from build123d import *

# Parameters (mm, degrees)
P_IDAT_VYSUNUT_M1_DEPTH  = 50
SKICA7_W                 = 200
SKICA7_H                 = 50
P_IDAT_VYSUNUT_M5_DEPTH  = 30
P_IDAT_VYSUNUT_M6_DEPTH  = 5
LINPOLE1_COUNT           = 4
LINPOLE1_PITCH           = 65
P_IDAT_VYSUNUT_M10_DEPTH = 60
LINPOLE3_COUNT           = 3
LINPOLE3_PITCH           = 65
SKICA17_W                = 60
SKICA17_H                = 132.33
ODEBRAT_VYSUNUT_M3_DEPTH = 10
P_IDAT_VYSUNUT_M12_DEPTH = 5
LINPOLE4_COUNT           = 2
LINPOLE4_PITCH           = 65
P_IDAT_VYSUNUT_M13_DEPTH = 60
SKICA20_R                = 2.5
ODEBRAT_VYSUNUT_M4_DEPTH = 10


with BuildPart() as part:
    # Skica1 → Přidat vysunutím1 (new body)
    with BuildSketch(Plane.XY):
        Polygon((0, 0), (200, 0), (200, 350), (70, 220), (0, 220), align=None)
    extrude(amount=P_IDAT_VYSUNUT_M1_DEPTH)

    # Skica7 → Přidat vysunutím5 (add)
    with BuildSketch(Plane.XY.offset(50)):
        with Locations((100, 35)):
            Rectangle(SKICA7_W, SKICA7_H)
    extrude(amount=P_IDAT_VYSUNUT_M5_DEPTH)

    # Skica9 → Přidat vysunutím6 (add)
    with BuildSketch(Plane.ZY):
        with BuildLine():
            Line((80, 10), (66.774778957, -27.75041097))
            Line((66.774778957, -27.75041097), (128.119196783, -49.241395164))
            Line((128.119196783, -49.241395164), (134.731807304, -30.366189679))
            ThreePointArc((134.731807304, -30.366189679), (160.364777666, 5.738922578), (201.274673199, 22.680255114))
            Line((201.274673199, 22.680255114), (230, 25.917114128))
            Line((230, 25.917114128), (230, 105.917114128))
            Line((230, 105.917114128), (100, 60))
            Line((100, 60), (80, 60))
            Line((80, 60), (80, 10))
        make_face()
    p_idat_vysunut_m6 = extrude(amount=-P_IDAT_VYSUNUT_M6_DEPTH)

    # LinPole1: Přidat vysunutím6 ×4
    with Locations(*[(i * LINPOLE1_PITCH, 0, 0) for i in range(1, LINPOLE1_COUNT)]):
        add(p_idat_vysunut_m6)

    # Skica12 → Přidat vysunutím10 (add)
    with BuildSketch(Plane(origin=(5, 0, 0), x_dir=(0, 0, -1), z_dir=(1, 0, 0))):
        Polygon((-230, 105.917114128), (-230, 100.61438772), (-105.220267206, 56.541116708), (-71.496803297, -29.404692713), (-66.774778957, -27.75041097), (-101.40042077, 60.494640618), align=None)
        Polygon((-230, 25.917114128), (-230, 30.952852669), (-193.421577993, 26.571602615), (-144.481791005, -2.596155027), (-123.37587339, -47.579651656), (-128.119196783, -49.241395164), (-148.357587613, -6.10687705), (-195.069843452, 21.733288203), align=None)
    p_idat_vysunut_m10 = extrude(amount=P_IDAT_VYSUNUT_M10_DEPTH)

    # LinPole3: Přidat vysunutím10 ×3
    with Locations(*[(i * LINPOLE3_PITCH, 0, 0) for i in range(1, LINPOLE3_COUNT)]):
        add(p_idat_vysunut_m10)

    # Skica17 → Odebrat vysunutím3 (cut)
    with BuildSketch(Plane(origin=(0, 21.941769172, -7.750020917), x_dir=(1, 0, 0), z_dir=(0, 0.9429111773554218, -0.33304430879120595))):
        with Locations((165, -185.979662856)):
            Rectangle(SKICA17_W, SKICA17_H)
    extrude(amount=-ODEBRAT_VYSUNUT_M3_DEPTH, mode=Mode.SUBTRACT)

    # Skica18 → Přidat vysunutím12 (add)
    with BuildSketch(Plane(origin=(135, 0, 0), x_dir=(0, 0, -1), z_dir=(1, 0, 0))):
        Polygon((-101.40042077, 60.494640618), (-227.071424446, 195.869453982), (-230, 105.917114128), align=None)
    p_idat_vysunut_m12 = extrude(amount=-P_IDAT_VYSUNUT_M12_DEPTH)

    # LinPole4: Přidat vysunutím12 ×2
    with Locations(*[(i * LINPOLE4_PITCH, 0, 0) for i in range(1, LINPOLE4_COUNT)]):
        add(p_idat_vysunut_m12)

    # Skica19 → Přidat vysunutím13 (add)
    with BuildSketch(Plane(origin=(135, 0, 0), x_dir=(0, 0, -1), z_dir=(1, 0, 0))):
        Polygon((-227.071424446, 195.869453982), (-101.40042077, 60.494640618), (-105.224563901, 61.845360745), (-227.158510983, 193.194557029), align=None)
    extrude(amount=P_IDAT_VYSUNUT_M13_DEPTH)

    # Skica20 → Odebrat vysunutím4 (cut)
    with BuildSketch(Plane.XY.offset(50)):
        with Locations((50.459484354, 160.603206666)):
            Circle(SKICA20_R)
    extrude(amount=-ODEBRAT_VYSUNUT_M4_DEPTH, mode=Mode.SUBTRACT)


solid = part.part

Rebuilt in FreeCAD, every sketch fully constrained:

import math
import FreeCAD as App
import Part
import Sketcher

V = App.Vector
Q = App.Units.Quantity


def add_polygon(sketch, points):
    """Adds a closed chain of lines whose ends are joined by coincident constraints."""
    first, n = sketch.GeometryCount, len(points)
    for a, b in zip(points, points[1:] + points[:1]):
        sketch.addGeometry(Part.LineSegment(App.Vector(*a, 0), App.Vector(*b, 0)), False)
    for i in range(n):
        sketch.addConstraint(Sketcher.Constraint("Coincident", first + i, 2, first + (i + 1) % n, 1))

doc = App.newDocument("Part")
body = doc.addObject("PartDesign::Body", "Body")

# Sketch on XY plane
sketch1 = body.newObject("Sketcher::SketchObject", "Sketch")
sketch1.AttachmentSupport = (doc.getObject("XY_Plane"), [""])
sketch1.MapMode = "FlatFace"
add_polygon(sketch1, [(0, 0), (200, 0), (200, 350), (70, 220), (0, 220)])  # lines 0-4
sketch1.addConstraint([
    Sketcher.Constraint("Horizontal", 0),
    Sketcher.Constraint("Vertical", 1),
    Sketcher.Constraint("Horizontal", 3),
    Sketcher.Constraint("Vertical", 4),
    Sketcher.Constraint("Coincident", 4, 2, -1, 1),
    Sketcher.Constraint("DistanceX", 0, 1, 0, 2, Q("200 mm")),
    Sketcher.Constraint("DistanceX", 3, 2, 3, 1, Q("70 mm")),
    Sketcher.Constraint("DistanceY", 1, 1, 1, 2, Q("350 mm")),
    Sketcher.Constraint("DistanceY", 4, 2, 4, 1, Q("220 mm")),
])
pad1 = body.newObject("PartDesign::Pad", "Pad")
pad1.Profile = sketch1
pad1.Length = 50

# Sketch on XY plane
sketch2 = body.newObject("Sketcher::SketchObject", "Sketch001")
sketch2.AttachmentSupport = (doc.getObject("XY_Plane"), [""])
sketch2.MapMode = "FlatFace"
sketch2.AttachmentOffset = App.Placement(V(0, 0, 50), App.Rotation())
add_polygon(sketch2, [(0, 60), (0, 10), (200, 10), (200, 60)])  # lines 0-3
sketch2.addConstraint([
    Sketcher.Constraint("Vertical", 0),
    Sketcher.Constraint("Horizontal", 1),
    Sketcher.Constraint("Vertical", 2),
    Sketcher.Constraint("Horizontal", 3),
    Sketcher.Constraint("PointOnObject", 0, 2, -2),
    Sketcher.Constraint("DistanceX", 1, 1, 1, 2, Q("200 mm")),
    Sketcher.Constraint("DistanceY", 0, 2, 0, 1, Q("50 mm")),
    Sketcher.Constraint("DistanceY", -1, 1, 0, 2, Q("10 mm")),
])
pad2 = body.newObject("PartDesign::Pad", "Pad001")
pad2.Profile = sketch2
pad2.Length = 30

# Sketch on YZ plane
sketch3 = body.newObject("Sketcher::SketchObject", "Sketch002")
sketch3.AttachmentSupport = (doc.getObject("YZ_Plane"), [""])
sketch3.MapMode = "FlatFace"
sketch3.addGeometry([
    Part.LineSegment(V(10, 80, 0), V(-28, 67, 0)),  # 0
    Part.LineSegment(V(-28, 67, 0), V(-49, 128, 0)),  # 1
    Part.LineSegment(V(-49, 128, 0), V(-30, 135, 0)),  # 2
    Part.ArcOfCircle(Part.Circle(V(-57, 210, 0), V(0, 0, 1), 80), math.radians(-71), math.radians(-6)),  # 3
    Part.LineSegment(V(23, 201, 0), V(26, 230, 0)),  # 4
    Part.LineSegment(V(26, 230, 0), V(106, 230, 0)),  # 5
    Part.LineSegment(V(106, 230, 0), V(60, 100, 0)),  # 6
    Part.LineSegment(V(60, 100, 0), V(60, 80, 0)),  # 7
    Part.LineSegment(V(60, 80, 0), V(10, 80, 0)),  # 8
], False)
sketch3.addConstraint([
    Sketcher.Constraint("Coincident", 0, 2, 1, 1),
    Sketcher.Constraint("Coincident", 1, 2, 2, 1),
    Sketcher.Constraint("Tangent", 2, 2, 3, 1),
    Sketcher.Constraint("Tangent", 3, 2, 4, 1),
    Sketcher.Constraint("Coincident", 4, 2, 5, 1),
    Sketcher.Constraint("Coincident", 5, 2, 6, 1),
    Sketcher.Constraint("Coincident", 6, 2, 7, 1),
    Sketcher.Constraint("Coincident", 7, 2, 8, 1),
    Sketcher.Constraint("Coincident", 8, 2, 0, 1),
    Sketcher.Constraint("Horizontal", 5),
    Sketcher.Constraint("Vertical", 7),
    Sketcher.Constraint("Horizontal", 8),
    Sketcher.Constraint("Perpendicular", 0, 1),
    Sketcher.Constraint("Perpendicular", 1, 2),
    Sketcher.Constraint("Radius", 3, Q("80 mm")),
    Sketcher.Constraint("DistanceX", 5, 1, 5, 2, Q("80 mm")),
    Sketcher.Constraint("DistanceX", 8, 2, 8, 1, Q("50 mm")),
    Sketcher.Constraint("DistanceY", 7, 2, 7, 1, Q("20 mm")),
    Sketcher.Constraint("Distance", 0, Q("40 mm")),
    Sketcher.Constraint("Distance", 1, Q("65 mm")),
    Sketcher.Constraint("Distance", 2, Q("20 mm")),
    Sketcher.Constraint("DistanceY", -1, 1, 4, 2, Q("230 mm")),
    Sketcher.Constraint("DistanceX", -1, 1, 6, 2, Q("60 mm")),
    Sketcher.Constraint("DistanceY", -1, 1, 6, 2, Q("100 mm")),
    Sketcher.Constraint("Distance", 4, Q("28.907121 mm")),
    Sketcher.Constraint("DistanceX", 3, 3, -1, 1, Q("56.816632 mm")),
])
pad3 = body.newObject("PartDesign::Pad", "Pad002")
pad3.Profile = sketch3
pad3.Length = 5
doc.recompute()

linearpattern = body.newObject("PartDesign::LinearPattern", "LinearPattern")
linearpattern.Originals = [pad3]
linearpattern.Direction = (doc.getObject("X_Axis"), [""])
linearpattern.Mode = "offset"
linearpattern.Offset = 65
linearpattern.Occurrences = 4
body.Tip = linearpattern

# Sketch on YZ plane
sketch4 = body.newObject("Sketcher::SketchObject", "Sketch003")
sketch4.AttachmentSupport = (doc.getObject("YZ_Plane"), [""])
sketch4.MapMode = "FlatFace"
sketch4.AttachmentOffset = App.Placement(V(0, 0, 5), App.Rotation())
add_polygon(sketch4, [(106, 230), (101, 230), (57, 105), (-29, 71), (-28, 67), (60, 101)])  # lines 0-5
add_polygon(sketch4, [(31, 230), (26, 230), (22, 195), (-6, 148), (-49, 128), (-48, 123), (-3, 144), (27, 193)])  # lines 6-13
sketch4.addConstraint([
    Sketcher.Constraint("Horizontal", 0),
    Sketcher.Constraint("Horizontal", 6),
    Sketcher.Constraint("Parallel", 2, 4),
    Sketcher.Constraint("Parallel", 1, 5),
    Sketcher.Constraint("Parallel", 3, 10),
    Sketcher.Constraint("Parallel", 9, 11),
    Sketcher.Constraint("Parallel", 8, 12),
    Sketcher.Constraint("Parallel", 7, 13),
    Sketcher.Constraint("Horizontal", 5, 2, 6, 2),
    Sketcher.Constraint("DistanceY", -1, 1, 0, 2, Q("230 mm")),
    Sketcher.Constraint("DistanceX", 6, 2, 5, 2, Q("80 mm")),
    Sketcher.Constraint("DistanceX", 6, 2, 6, 1, Q("5.035739 mm")),
    Sketcher.Constraint("DistanceX", 3, 2, 0, 2, Q("128.364799 mm")),
    Sketcher.Constraint("DistanceX", 7, 2, 0, 2, Q("78.8811 mm")),
    Sketcher.Constraint("Distance", 4, Q("94.79517 mm")),
    Sketcher.Constraint("Distance", 11, Q("49.688779 mm")),
    Sketcher.Constraint("DistanceX", 0, 2, 0, 1, Q("5.302726 mm")),
    Sketcher.Constraint("DistanceX", 3, 2, -1, 1, Q("27.750411 mm")),
    Sketcher.Constraint("DistanceY", -1, 1, 3, 2, Q("66.774779 mm")),
    Sketcher.Constraint("DistanceX", -1, 1, 4, 2, Q("60.494641 mm")),
    Sketcher.Constraint("DistanceX", 10, 2, -1, 1, Q("47.579652 mm")),
    Sketcher.Constraint("DistanceY", -1, 1, 11, 2, Q("144.481791 mm")),
    Sketcher.Constraint("DistanceX", 1, 2, 0, 2, Q("44.073271 mm")),
    Sketcher.Constraint("DistanceX", 2, 2, 1, 2, Q("85.945809 mm")),
    Sketcher.Constraint("DistanceY", 1, 2, 8, 2, Q("43.13732 mm")),
    Sketcher.Constraint("DistanceX", 9, 2, 8, 2, Q("43.134518 mm")),
    Sketcher.Constraint("DistanceY", 9, 2, 8, 2, Q("20.238391 mm")),
    Sketcher.Constraint("DistanceY", 10, 2, 7, 2, Q("71.69397 mm")),
])
pad4 = body.newObject("PartDesign::Pad", "Pad003")
pad4.Profile = sketch4
pad4.Length = 60
doc.recompute()

linearpattern2 = body.newObject("PartDesign::LinearPattern", "LinearPattern001")
linearpattern2.Originals = [pad4]
linearpattern2.Direction = (doc.getObject("X_Axis"), [""])
linearpattern2.Mode = "offset"
linearpattern2.Offset = 65
linearpattern2.Occurrences = 3
body.Tip = linearpattern2

# Sketch on an angled plane
sketch5 = body.newObject("Sketcher::SketchObject", "Sketch004")
sketch5.Placement = App.Placement(V(0, 21.941769, -7.750021), App.Rotation(V(1, 0, 0), V(0, -0.333044309, -0.942911177), V(0, 0.942911177, -0.333044309), "ZXY"))
add_polygon(sketch5, [(135, -120), (135, -252), (195, -252), (195, -120)])  # lines 0-3
sketch5.addConstraint([
    Sketcher.Constraint("Vertical", 0),
    Sketcher.Constraint("Horizontal", 1),
    Sketcher.Constraint("Vertical", 2),
    Sketcher.Constraint("Horizontal", 3),
    Sketcher.Constraint("DistanceX", 1, 1, 1, 2, Q("60 mm")),
    Sketcher.Constraint("DistanceX", -1, 1, 0, 2, Q("135 mm")),
    Sketcher.Constraint("DistanceY", 0, 2, 0, 1, Q("132.33 mm")),
    Sketcher.Constraint("DistanceY", 0, 2, -1, 1, Q("252.144663 mm")),
])
pocket1 = body.newObject("PartDesign::Pocket", "Pocket")
pocket1.Profile = sketch5
pocket1.Length = 10

# Sketch on YZ plane
sketch6 = body.newObject("Sketcher::SketchObject", "Sketch005")
sketch6.AttachmentSupport = (doc.getObject("YZ_Plane"), [""])
sketch6.MapMode = "FlatFace"
sketch6.AttachmentOffset = App.Placement(V(0, 0, 135), App.Rotation())
add_polygon(sketch6, [(60, 101), (196, 227), (106, 230)])  # lines 0-2
sketch6.addConstraint([
    Sketcher.Constraint("Distance", 1, Q("90 mm")),
    Sketcher.Constraint("DistanceY", -1, 1, 1, 2, Q("230 mm")),
    Sketcher.Constraint("DistanceX", -1, 1, 2, 2, Q("60.494641 mm")),
    Sketcher.Constraint("DistanceY", -1, 1, 2, 2, Q("101.400421 mm")),
    Sketcher.Constraint("DistanceX", 1, 2, 0, 2, Q("89.95234 mm")),
    Sketcher.Constraint("Distance", 0, Q("184.714756 mm")),
])
pad5 = body.newObject("PartDesign::Pad", "Pad004")
pad5.Profile = sketch6
pad5.Length = 5
pad5.Reversed = True
doc.recompute()

linearpattern3 = body.newObject("PartDesign::LinearPattern", "LinearPattern002")
linearpattern3.Originals = [pad5]
linearpattern3.Direction = (doc.getObject("X_Axis"), [""])
linearpattern3.Mode = "offset"
linearpattern3.Offset = 65
linearpattern3.Occurrences = 2
body.Tip = linearpattern3

# Sketch on YZ plane
sketch7 = body.newObject("Sketcher::SketchObject", "Sketch006")
sketch7.AttachmentSupport = (doc.getObject("YZ_Plane"), [""])
sketch7.MapMode = "FlatFace"
sketch7.AttachmentOffset = App.Placement(V(0, 0, 135), App.Rotation())
add_polygon(sketch7, [(60.5, 101.4), (195.9, 227.1), (193.2, 227.2), (61.8, 105.2)])  # lines 0-3
sketch7.addConstraint([
    Sketcher.Constraint("Parallel", 0, 2),
    Sketcher.Constraint("DistanceY", -1, 1, 1, 2, Q("227.158511 mm")),
    Sketcher.Constraint("DistanceX", -1, 1, 2, 2, Q("61.845361 mm")),
    Sketcher.Constraint("DistanceX", -1, 1, 3, 2, Q("60.494641 mm")),
    Sketcher.Constraint("DistanceY", -1, 1, 3, 2, Q("101.400421 mm")),
    Sketcher.Constraint("DistanceY", 2, 2, 0, 2, Q("121.846861 mm")),
    Sketcher.Constraint("Distance", 0, Q("184.714756 mm")),
    Sketcher.Constraint("Distance", 1, Q("2.676314 mm")),
])
pad6 = body.newObject("PartDesign::Pad", "Pad005")
pad6.Profile = sketch7
pad6.Length = 60

# Sketch on XY plane
sketch8 = body.newObject("Sketcher::SketchObject", "Sketch007")
sketch8.AttachmentSupport = (doc.getObject("XY_Plane"), [""])
sketch8.MapMode = "FlatFace"
sketch8.AttachmentOffset = App.Placement(V(0, 0, 50), App.Rotation())
sketch8.addGeometry(Part.Circle(V(50.5, 160.6, 0), V(0, 0, 1), 2.5), False)
sketch8.addConstraint([
    Sketcher.Constraint("Diameter", 0, Q("5 mm")),
    Sketcher.Constraint("DistanceX", -1, 1, 0, 3, Q("50.459484 mm")),
    Sketcher.Constraint("DistanceY", -1, 1, 0, 3, Q("160.603207 mm")),
])
pocket2 = body.newObject("PartDesign::Pocket", "Pocket001")
pocket2.Profile = sketch8
pocket2.Length = 10

doc.recompute()
